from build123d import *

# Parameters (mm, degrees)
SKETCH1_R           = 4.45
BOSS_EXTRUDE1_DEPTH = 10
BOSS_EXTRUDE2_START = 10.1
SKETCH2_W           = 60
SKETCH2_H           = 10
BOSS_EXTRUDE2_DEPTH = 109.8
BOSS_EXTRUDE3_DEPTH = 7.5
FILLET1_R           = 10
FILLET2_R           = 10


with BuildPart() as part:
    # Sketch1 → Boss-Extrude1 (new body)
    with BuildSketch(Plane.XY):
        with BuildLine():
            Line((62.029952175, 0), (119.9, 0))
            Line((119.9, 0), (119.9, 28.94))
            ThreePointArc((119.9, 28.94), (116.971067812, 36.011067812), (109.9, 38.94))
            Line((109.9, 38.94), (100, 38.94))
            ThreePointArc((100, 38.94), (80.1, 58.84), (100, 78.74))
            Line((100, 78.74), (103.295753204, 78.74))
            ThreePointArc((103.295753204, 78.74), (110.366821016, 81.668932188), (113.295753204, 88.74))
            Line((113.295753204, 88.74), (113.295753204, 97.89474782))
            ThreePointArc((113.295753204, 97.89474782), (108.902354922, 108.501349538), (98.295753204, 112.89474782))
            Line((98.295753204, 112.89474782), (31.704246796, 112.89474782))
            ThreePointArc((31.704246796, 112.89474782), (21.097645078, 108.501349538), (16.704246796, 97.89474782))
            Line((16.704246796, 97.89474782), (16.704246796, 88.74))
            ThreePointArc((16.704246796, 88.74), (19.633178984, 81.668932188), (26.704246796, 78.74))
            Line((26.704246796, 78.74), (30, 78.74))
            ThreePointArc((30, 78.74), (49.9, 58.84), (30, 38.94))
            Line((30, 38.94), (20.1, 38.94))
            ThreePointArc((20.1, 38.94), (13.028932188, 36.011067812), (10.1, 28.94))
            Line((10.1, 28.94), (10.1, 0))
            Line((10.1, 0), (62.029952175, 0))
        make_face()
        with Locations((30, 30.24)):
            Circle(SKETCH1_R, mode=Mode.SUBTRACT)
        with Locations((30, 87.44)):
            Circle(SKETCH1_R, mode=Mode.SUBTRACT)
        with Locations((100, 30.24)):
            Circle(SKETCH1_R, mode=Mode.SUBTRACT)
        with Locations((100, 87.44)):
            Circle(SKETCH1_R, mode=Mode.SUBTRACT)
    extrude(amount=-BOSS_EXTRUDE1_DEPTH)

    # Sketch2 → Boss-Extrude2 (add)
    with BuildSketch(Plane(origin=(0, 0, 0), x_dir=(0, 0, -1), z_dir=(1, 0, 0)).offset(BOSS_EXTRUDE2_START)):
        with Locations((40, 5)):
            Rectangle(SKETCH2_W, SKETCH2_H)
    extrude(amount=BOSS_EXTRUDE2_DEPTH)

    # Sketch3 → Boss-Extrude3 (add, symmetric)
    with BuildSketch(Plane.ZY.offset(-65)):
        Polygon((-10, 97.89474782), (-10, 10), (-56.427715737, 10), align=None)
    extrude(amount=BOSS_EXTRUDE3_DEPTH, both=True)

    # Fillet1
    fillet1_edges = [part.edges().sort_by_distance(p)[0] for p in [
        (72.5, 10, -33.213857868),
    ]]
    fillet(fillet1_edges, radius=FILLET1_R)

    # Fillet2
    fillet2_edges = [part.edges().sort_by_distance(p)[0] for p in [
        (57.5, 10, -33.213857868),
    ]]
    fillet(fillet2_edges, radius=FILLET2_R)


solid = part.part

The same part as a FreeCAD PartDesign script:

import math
import FreeCAD as App
import Part
import Sketcher

V = App.Vector
Q = App.Units.Quantity


def edges_at(feature, points):
    """Names of the edges that pass closest to the given points."""
    edges = feature.Shape.Edges
    near = lambda p: min(range(len(edges)), key=lambda i: edges[i].distToShape(Part.Vertex(*p))[0])
    return sorted({f"Edge{near(p) + 1}" for p in points})

doc = App.newDocument("Part")
params = doc.addObject("Spreadsheet::Sheet", "Params")
for row, (alias, value) in enumerate([
    ("sketch1_radius", "10 mm"),
    ("sketch1_radius2", "15 mm"),
    ("sketch1_diameter", "8.9 mm"),
    ("sketch1_radius3", "19.9 mm"),
    ("sketch1_width", "9.9 mm"),
    ("pad1_length", "10 mm"),
    ("sketch2_width", "10 mm"),
    ("sketch2_height", "60 mm"),
    ("pad2_length", "109.8 mm"),
    ("pad3_length", "15 mm"),
    ("fillet_radius", "10 mm"),
    ("fillet2_radius", "10 mm"),
], start=1):
    params.set(f"A{row}", alias)
    params.set(f"B{row}", "=" + value)
    params.setAlias(f"B{row}", alias)

body = doc.addObject("PartDesign::Body", "Body")

# Sketch on XY plane
sketch1 = body.newObject("Sketcher::SketchObject", "Sketch")
sketch1.AttachmentSupport = (doc.getObject("XY_Plane"), [""])
sketch1.MapMode = "FlatFace"
sketch1.addGeometry(Part.LineSegment(V(119.9, 0, 0), V(119.9, 28.94, 0)), False)
sketch1.addGeometry(Part.ArcOfCircle(Part.Circle(V(109.9, 28.94, 0), V(0, 0, 1), 10), math.radians(0), math.radians(90)), False)
sketch1.addGeometry(Part.LineSegment(V(109.9, 38.94, 0), V(100, 38.94, 0)), False)
sketch1.addGeometry(Part.ArcOfCircle(Part.Circle(V(100, 58.84, 0), V(0, 0, 1), 19.9), math.radians(90), math.radians(270)), False)
sketch1.addGeometry(Part.LineSegment(V(100, 78.74, 0), V(103.295753, 78.74, 0)), False)
sketch1.addGeometry(Part.ArcOfCircle(Part.Circle(V(103.295753, 88.74, 0), V(0, 0, 1), 10), math.radians(-90), math.radians(0)), False)
sketch1.addGeometry(Part.LineSegment(V(113.295753, 88.74, 0), V(113.295753, 97.894748, 0)), False)
sketch1.addGeometry(Part.ArcOfCircle(Part.Circle(V(98.295753, 97.894748, 0), V(0, 0, 1), 15), math.radians(0), math.radians(90)), False)
sketch1.addGeometry(Part.LineSegment(V(98.295753, 112.894748, 0), V(31.704247, 112.894748, 0)), False)
sketch1.addGeometry(Part.ArcOfCircle(Part.Circle(V(31.704247, 97.894748, 0), V(0, 0, 1), 15), math.radians(90), math.radians(180)), False)
sketch1.addGeometry(Part.LineSegment(V(16.704247, 97.894748, 0), V(16.704247, 88.74, 0)), False)
sketch1.addGeometry(Part.ArcOfCircle(Part.Circle(V(26.704247, 88.74, 0), V(0, 0, 1), 10), math.radians(180), math.radians(270)), False)
sketch1.addGeometry(Part.LineSegment(V(26.704247, 78.74, 0), V(30, 78.74, 0)), False)
sketch1.addGeometry(Part.ArcOfCircle(Part.Circle(V(30, 58.84, 0), V(0, 0, 1), 19.9), math.radians(-90), math.radians(90)), False)
sketch1.addGeometry(Part.LineSegment(V(30, 38.94, 0), V(20.1, 38.94, 0)), False)
sketch1.addGeometry(Part.ArcOfCircle(Part.Circle(V(20.1, 28.94, 0), V(0, 0, 1), 10), math.radians(90), math.radians(180)), False)
sketch1.addGeometry(Part.LineSegment(V(10.1, 28.94, 0), V(10.1, 0, 0)), False)
sketch1.addGeometry(Part.LineSegment(V(10.1, 0, 0), V(119.9, 0, 0)), False)
sketch1.addGeometry(Part.Circle(V(30, 30.24, 0), V(0, 0, 1), 4.45), False)
sketch1.addGeometry(Part.Circle(V(100, 30.24, 0), V(0, 0, 1), 4.45), False)
sketch1.addGeometry(Part.Circle(V(30, 87.44, 0), V(0, 0, 1), 4.45), False)
sketch1.addGeometry(Part.Circle(V(100, 87.44, 0), V(0, 0, 1), 4.45), False)
sketch1.addConstraint(Sketcher.Constraint("Tangent", 0, 2, 1, 1))
sketch1.addConstraint(Sketcher.Constraint("Tangent", 1, 2, 2, 1))
sketch1.addConstraint(Sketcher.Constraint("Tangent", 2, 2, 3, 2))
sketch1.addConstraint(Sketcher.Constraint("Tangent", 3, 1, 4, 1))
sketch1.addConstraint(Sketcher.Constraint("Tangent", 4, 2, 5, 1))
sketch1.addConstraint(Sketcher.Constraint("Tangent", 5, 2, 6, 1))
sketch1.addConstraint(Sketcher.Constraint("Tangent", 6, 2, 7, 1))
sketch1.addConstraint(Sketcher.Constraint("Tangent", 7, 2, 8, 1))
sketch1.addConstraint(Sketcher.Constraint("Tangent", 8, 2, 9, 1))
sketch1.addConstraint(Sketcher.Constraint("Tangent", 9, 2, 10, 1))
sketch1.addConstraint(Sketcher.Constraint("Tangent", 10, 2, 11, 1))
sketch1.addConstraint(Sketcher.Constraint("Tangent", 11, 2, 12, 1))
sketch1.addConstraint(Sketcher.Constraint("Tangent", 12, 2, 13, 2))
sketch1.addConstraint(Sketcher.Constraint("Tangent", 13, 1, 14, 1))
sketch1.addConstraint(Sketcher.Constraint("Tangent", 14, 2, 15, 1))
sketch1.addConstraint(Sketcher.Constraint("Tangent", 15, 2, 16, 1))
sketch1.addConstraint(Sketcher.Constraint("Coincident", 16, 2, 17, 1))
sketch1.addConstraint(Sketcher.Constraint("Coincident", 17, 2, 0, 1))
sketch1.addConstraint(Sketcher.Constraint("Vertical", 0))
sketch1.addConstraint(Sketcher.Constraint("Horizontal", 2))
sketch1.addConstraint(Sketcher.Constraint("Horizontal", 4))
sketch1.addConstraint(Sketcher.Constraint("Vertical", 6))
sketch1.addConstraint(Sketcher.Constraint("Horizontal", 8))
sketch1.addConstraint(Sketcher.Constraint("Vertical", 10))
sketch1.addConstraint(Sketcher.Constraint("Horizontal", 12))
sketch1.addConstraint(Sketcher.Constraint("Horizontal", 14))
sketch1.addConstraint(Sketcher.Constraint("Vertical", 16))
sketch1.addConstraint(Sketcher.Constraint("Horizontal", 17))
sketch1.addConstraint(Sketcher.Constraint("Equal", 1, 5))
sketch1.addConstraint(Sketcher.Constraint("Equal", 7, 9))
sketch1.addConstraint(Sketcher.Constraint("Equal", 5, 11))
sketch1.addConstraint(Sketcher.Constraint("Equal", 3, 13))
sketch1.addConstraint(Sketcher.Constraint("Equal", 11, 15))
sketch1.addConstraint(Sketcher.Constraint("Equal", 18, 19))
sketch1.addConstraint(Sketcher.Constraint("Equal", 19, 20))
sketch1.addConstraint(Sketcher.Constraint("Equal", 20, 21))
sketch1.addConstraint(Sketcher.Constraint("PointOnObject", 16, 2, -1))
sketch1.addConstraint(Sketcher.Constraint("Horizontal", 5, 3, 11, 3))
sketch1.addConstraint(Sketcher.Constraint("Horizontal", 18, 3, 19, 3))
sketch1.addConstraint(Sketcher.Constraint("Horizontal", 20, 3, 21, 3))
sketch1.addConstraint(Sketcher.Constraint("Vertical", 13, 3, 18, 3))
sketch1.addConstraint(Sketcher.Constraint("Vertical", 3, 3, 19, 3))
sketch1.addConstraint(Sketcher.Constraint("Vertical", 18, 3, 20, 3))
sketch1.addConstraint(Sketcher.Constraint("Vertical", 19, 3, 21, 3))
sketch1.addConstraint(Sketcher.Constraint("Equal", 4, 12))
sketch1.addConstraint(Sketcher.Constraint("Equal", 2, 14))
sketch1.addConstraint(Sketcher.Constraint("Radius", 1, Q("10 mm")))
sketch1.addConstraint(Sketcher.Constraint("Radius", 7, Q("15 mm")))
sketch1.addConstraint(Sketcher.Constraint("Diameter", 18, Q("8.9 mm")))
sketch1.addConstraint(Sketcher.Constraint("Radius", 3, Q("19.9 mm")))
sketch1.addConstraint(Sketcher.Constraint("DistanceX", 2, 2, 2, 1, Q("9.9 mm")))
sketch1.addConstraint(Sketcher.Constraint("DistanceX", 17, 1, 17, 2, Q("109.8 mm")))
sketch1.addConstraint(Sketcher.Constraint("DistanceX", -1, 1, 3, 3, Q("100 mm")))
sketch1.addConstraint(Sketcher.Constraint("DistanceY", 0, 1, 0, 2, Q("28.94 mm")))
sketch1.addConstraint(Sketcher.Constraint("DistanceY", 15, 3, 18, 3, Q("1.3 mm")))
sketch1.addConstraint(Sketcher.Constraint("DistanceY", 20, 3, 11, 3, Q("1.3 mm")))
sketch1.addConstraint(Sketcher.Constraint("DistanceX", 4, 1, 4, 2, Q("3.295753 mm")))
sketch1.addConstraint(Sketcher.Constraint("DistanceY", 6, 1, 6, 2, Q("9.154748 mm")))
sketch1.setExpression("Constraints[46]", "Params.sketch1_radius")
sketch1.setExpression("Constraints[47]", "Params.sketch1_radius2")
sketch1.setExpression("Constraints[48]", "Params.sketch1_diameter")
sketch1.setExpression("Constraints[49]", "Params.sketch1_radius3")
sketch1.setExpression("Constraints[50]", "Params.sketch1_width")
pad1 = body.newObject("PartDesign::Pad", "Pad")
pad1.Profile = sketch1
pad1.setExpression("Length", "Params.pad1_length")
pad1.Reversed = True

# Sketch on YZ plane
sketch2 = body.newObject("Sketcher::SketchObject", "Sketch001")
sketch2.AttachmentSupport = (doc.getObject("YZ_Plane"), [""])
sketch2.MapMode = "FlatFace"
sketch2.AttachmentOffset = App.Placement(V(0, 0, 10.1), App.Rotation())
sketch2.addGeometry(Part.LineSegment(V(10, -10, 0), V(0, -10, 0)), False)
sketch2.addGeometry(Part.LineSegment(V(0, -10, 0), V(0, -70, 0)), False)
sketch2.addGeometry(Part.LineSegment(V(0, -70, 0), V(10, -70, 0)), False)
sketch2.addGeometry(Part.LineSegment(V(10, -70, 0), V(10, -10, 0)), False)
sketch2.addConstraint(Sketcher.Constraint("Coincident", 0, 2, 1, 1))
sketch2.addConstraint(Sketcher.Constraint("Coincident", 1, 2, 2, 1))
sketch2.addConstraint(Sketcher.Constraint("Coincident", 2, 2, 3, 1))
sketch2.addConstraint(Sketcher.Constraint("Coincident", 3, 2, 0, 1))
sketch2.addConstraint(Sketcher.Constraint("Horizontal", 0))
sketch2.addConstraint(Sketcher.Constraint("Vertical", 1))
sketch2.addConstraint(Sketcher.Constraint("Horizontal", 2))
sketch2.addConstraint(Sketcher.Constraint("Vertical", 3))
sketch2.addConstraint(Sketcher.Constraint("PointOnObject", 0, 2, -2))
sketch2.addConstraint(Sketcher.Constraint("DistanceX", 0, 2, 0, 1, Q("10 mm")))
sketch2.addConstraint(Sketcher.Constraint("DistanceY", 1, 2, 1, 1, Q("60 mm")))
sketch2.addConstraint(Sketcher.Constraint("DistanceY", 0, 2, -1, 1, Q("10 mm")))
sketch2.setExpression("Constraints[9]", "Params.sketch2_width")
sketch2.setExpression("Constraints[10]", "Params.sketch2_height")
pad2 = body.newObject("PartDesign::Pad", "Pad001")
pad2.Profile = sketch2
pad2.setExpression("Length", "Params.pad2_length")

# Sketch on YZ plane
sketch3 = body.newObject("Sketcher::SketchObject", "Sketch002")
sketch3.AttachmentSupport = (doc.getObject("YZ_Plane"), [""])
sketch3.MapMode = "FlatFace"
sketch3.AttachmentOffset = App.Placement(V(0, 0, 65), App.Rotation())
sketch3.addGeometry(Part.LineSegment(V(10, -10, 0), V(97.894748, -10, 0)), False)
sketch3.addGeometry(Part.LineSegment(V(97.894748, -10, 0), V(10, -56.427716, 0)), False)
sketch3.addGeometry(Part.LineSegment(V(10, -56.427716, 0), V(10, -10, 0)), False)
sketch3.addConstraint(Sketcher.Constraint("Coincident", 0, 2, 1, 1))
sketch3.addConstraint(Sketcher.Constraint("Coincident", 1, 2, 2, 1))
sketch3.addConstraint(Sketcher.Constraint("Coincident", 2, 2, 0, 1))
sketch3.addConstraint(Sketcher.Constraint("Horizontal", 0))
sketch3.addConstraint(Sketcher.Constraint("Vertical", 2))
sketch3.addConstraint(Sketcher.Constraint("DistanceY", 0, 2, -1, 1, Q("10 mm")))
sketch3.addConstraint(Sketcher.Constraint("DistanceX", -1, 1, 1, 2, Q("10 mm")))
sketch3.addConstraint(Sketcher.Constraint("DistanceX", 0, 1, 0, 2, Q("87.894748 mm")))
sketch3.addConstraint(Sketcher.Constraint("DistanceY", 2, 1, 2, 2, Q("46.427716 mm")))
pad3 = body.newObject("PartDesign::Pad", "Pad002")
pad3.Profile = sketch3
pad3.setExpression("Length", "Params.pad3_length")
pad3.Midplane = True
doc.recompute()

fillet = body.newObject("PartDesign::Fillet", "Fillet")
fillet.Base = (pad3, edges_at(pad3, [(72.5, 10, -33.214)]))
fillet.setExpression("Radius", "Params.fillet_radius")
doc.recompute()

fillet2 = body.newObject("PartDesign::Fillet", "Fillet001")
fillet2.Base = (fillet, edges_at(fillet, [(57.5, 10, -33.214)]))
fillet2.setExpression("Radius", "Params.fillet2_radius")

doc.recompute()
